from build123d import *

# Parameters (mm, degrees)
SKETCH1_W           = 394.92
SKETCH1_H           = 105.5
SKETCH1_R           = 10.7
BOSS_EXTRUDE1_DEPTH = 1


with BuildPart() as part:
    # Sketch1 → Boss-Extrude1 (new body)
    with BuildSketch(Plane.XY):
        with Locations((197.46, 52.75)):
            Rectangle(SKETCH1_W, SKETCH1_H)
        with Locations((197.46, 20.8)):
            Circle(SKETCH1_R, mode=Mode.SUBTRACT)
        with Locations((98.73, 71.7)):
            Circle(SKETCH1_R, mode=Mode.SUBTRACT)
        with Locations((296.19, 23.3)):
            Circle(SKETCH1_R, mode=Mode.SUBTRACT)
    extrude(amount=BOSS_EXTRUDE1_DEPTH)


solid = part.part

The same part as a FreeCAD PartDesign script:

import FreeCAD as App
import Part
import Sketcher

V = App.Vector

doc = App.newDocument("Part")
body = doc.addObject("PartDesign::Body", "Body")

# Sketch on XY plane
sketch1 = doc.addObject("Sketcher::SketchObject", "Sketch")
body.addObject(sketch1)
sketch1.AttachmentSupport = (doc.XY_Plane, [""])
sketch1.MapMode = "FlatFace"
sketch1.addGeometry(Part.LineSegment(V(0, 106, 0), V(0, 0, 0)), False)
sketch1.addGeometry(Part.LineSegment(V(0, 0, 0), V(395, 0, 0)), False)
sketch1.addGeometry(Part.LineSegment(V(395, 0, 0), V(395, 106, 0)), False)
sketch1.addGeometry(Part.LineSegment(V(395, 106, 0), V(0, 106, 0)), False)
sketch1.addGeometry(Part.Circle(V(197, 21, 0), V(0, 0, 1), 11), False)
sketch1.addGeometry(Part.Circle(V(296, 23, 0), V(0, 0, 1), 11), False)
sketch1.addGeometry(Part.Circle(V(99, 72, 0), V(0, 0, 1), 11), False)
sketch1.addConstraint(Sketcher.Constraint("Coincident", 0, 2, 1, 1))
sketch1.addConstraint(Sketcher.Constraint("Coincident", 1, 2, 2, 1))
sketch1.addConstraint(Sketcher.Constraint("Coincident", 2, 2, 3, 1))
sketch1.addConstraint(Sketcher.Constraint("Coincident", 3, 2, 0, 1))
sketch1.addConstraint(Sketcher.Constraint("Vertical", 0))
sketch1.addConstraint(Sketcher.Constraint("Horizontal", 1))
sketch1.addConstraint(Sketcher.Constraint("Vertical", 2))
sketch1.addConstraint(Sketcher.Constraint("Horizontal", 3))
sketch1.addConstraint(Sketcher.Constraint("Coincident", 0, 2, -1, 1))
sketch1.addConstraint(Sketcher.Constraint("Equal", 4, 5))
sketch1.addConstraint(Sketcher.Constraint("Equal", 5, 6))
sketch1.addConstraint(Sketcher.Constraint("Diameter", 4, 21.4))
sketch1.addConstraint(Sketcher.Constraint("DistanceY", 0, 2, 0, 1, 105.5))
sketch1.addConstraint(Sketcher.Constraint("DistanceX", 1, 1, 1, 2, 394.92))
sketch1.addConstraint(Sketcher.Constraint("DistanceY", -1, 1, 4, 3, 20.8))
sketch1.addConstraint(Sketcher.Constraint("DistanceY", -1, 1, 5, 3, 23.3))
sketch1.addConstraint(Sketcher.Constraint("DistanceY", -1, 1, 6, 3, 71.7))
sketch1.addConstraint(Sketcher.Constraint("DistanceX", -1, 1, 4, 3, 197.46))
sketch1.addConstraint(Sketcher.Constraint("DistanceX", -1, 1, 5, 3, 296.19))
sketch1.addConstraint(Sketcher.Constraint("DistanceX", -1, 1, 6, 3, 98.73))
pad1 = doc.addObject("PartDesign::Pad", "Pad")
body.addObject(pad1)
pad1.Profile = sketch1
pad1.Length = 1

doc.recompute()
